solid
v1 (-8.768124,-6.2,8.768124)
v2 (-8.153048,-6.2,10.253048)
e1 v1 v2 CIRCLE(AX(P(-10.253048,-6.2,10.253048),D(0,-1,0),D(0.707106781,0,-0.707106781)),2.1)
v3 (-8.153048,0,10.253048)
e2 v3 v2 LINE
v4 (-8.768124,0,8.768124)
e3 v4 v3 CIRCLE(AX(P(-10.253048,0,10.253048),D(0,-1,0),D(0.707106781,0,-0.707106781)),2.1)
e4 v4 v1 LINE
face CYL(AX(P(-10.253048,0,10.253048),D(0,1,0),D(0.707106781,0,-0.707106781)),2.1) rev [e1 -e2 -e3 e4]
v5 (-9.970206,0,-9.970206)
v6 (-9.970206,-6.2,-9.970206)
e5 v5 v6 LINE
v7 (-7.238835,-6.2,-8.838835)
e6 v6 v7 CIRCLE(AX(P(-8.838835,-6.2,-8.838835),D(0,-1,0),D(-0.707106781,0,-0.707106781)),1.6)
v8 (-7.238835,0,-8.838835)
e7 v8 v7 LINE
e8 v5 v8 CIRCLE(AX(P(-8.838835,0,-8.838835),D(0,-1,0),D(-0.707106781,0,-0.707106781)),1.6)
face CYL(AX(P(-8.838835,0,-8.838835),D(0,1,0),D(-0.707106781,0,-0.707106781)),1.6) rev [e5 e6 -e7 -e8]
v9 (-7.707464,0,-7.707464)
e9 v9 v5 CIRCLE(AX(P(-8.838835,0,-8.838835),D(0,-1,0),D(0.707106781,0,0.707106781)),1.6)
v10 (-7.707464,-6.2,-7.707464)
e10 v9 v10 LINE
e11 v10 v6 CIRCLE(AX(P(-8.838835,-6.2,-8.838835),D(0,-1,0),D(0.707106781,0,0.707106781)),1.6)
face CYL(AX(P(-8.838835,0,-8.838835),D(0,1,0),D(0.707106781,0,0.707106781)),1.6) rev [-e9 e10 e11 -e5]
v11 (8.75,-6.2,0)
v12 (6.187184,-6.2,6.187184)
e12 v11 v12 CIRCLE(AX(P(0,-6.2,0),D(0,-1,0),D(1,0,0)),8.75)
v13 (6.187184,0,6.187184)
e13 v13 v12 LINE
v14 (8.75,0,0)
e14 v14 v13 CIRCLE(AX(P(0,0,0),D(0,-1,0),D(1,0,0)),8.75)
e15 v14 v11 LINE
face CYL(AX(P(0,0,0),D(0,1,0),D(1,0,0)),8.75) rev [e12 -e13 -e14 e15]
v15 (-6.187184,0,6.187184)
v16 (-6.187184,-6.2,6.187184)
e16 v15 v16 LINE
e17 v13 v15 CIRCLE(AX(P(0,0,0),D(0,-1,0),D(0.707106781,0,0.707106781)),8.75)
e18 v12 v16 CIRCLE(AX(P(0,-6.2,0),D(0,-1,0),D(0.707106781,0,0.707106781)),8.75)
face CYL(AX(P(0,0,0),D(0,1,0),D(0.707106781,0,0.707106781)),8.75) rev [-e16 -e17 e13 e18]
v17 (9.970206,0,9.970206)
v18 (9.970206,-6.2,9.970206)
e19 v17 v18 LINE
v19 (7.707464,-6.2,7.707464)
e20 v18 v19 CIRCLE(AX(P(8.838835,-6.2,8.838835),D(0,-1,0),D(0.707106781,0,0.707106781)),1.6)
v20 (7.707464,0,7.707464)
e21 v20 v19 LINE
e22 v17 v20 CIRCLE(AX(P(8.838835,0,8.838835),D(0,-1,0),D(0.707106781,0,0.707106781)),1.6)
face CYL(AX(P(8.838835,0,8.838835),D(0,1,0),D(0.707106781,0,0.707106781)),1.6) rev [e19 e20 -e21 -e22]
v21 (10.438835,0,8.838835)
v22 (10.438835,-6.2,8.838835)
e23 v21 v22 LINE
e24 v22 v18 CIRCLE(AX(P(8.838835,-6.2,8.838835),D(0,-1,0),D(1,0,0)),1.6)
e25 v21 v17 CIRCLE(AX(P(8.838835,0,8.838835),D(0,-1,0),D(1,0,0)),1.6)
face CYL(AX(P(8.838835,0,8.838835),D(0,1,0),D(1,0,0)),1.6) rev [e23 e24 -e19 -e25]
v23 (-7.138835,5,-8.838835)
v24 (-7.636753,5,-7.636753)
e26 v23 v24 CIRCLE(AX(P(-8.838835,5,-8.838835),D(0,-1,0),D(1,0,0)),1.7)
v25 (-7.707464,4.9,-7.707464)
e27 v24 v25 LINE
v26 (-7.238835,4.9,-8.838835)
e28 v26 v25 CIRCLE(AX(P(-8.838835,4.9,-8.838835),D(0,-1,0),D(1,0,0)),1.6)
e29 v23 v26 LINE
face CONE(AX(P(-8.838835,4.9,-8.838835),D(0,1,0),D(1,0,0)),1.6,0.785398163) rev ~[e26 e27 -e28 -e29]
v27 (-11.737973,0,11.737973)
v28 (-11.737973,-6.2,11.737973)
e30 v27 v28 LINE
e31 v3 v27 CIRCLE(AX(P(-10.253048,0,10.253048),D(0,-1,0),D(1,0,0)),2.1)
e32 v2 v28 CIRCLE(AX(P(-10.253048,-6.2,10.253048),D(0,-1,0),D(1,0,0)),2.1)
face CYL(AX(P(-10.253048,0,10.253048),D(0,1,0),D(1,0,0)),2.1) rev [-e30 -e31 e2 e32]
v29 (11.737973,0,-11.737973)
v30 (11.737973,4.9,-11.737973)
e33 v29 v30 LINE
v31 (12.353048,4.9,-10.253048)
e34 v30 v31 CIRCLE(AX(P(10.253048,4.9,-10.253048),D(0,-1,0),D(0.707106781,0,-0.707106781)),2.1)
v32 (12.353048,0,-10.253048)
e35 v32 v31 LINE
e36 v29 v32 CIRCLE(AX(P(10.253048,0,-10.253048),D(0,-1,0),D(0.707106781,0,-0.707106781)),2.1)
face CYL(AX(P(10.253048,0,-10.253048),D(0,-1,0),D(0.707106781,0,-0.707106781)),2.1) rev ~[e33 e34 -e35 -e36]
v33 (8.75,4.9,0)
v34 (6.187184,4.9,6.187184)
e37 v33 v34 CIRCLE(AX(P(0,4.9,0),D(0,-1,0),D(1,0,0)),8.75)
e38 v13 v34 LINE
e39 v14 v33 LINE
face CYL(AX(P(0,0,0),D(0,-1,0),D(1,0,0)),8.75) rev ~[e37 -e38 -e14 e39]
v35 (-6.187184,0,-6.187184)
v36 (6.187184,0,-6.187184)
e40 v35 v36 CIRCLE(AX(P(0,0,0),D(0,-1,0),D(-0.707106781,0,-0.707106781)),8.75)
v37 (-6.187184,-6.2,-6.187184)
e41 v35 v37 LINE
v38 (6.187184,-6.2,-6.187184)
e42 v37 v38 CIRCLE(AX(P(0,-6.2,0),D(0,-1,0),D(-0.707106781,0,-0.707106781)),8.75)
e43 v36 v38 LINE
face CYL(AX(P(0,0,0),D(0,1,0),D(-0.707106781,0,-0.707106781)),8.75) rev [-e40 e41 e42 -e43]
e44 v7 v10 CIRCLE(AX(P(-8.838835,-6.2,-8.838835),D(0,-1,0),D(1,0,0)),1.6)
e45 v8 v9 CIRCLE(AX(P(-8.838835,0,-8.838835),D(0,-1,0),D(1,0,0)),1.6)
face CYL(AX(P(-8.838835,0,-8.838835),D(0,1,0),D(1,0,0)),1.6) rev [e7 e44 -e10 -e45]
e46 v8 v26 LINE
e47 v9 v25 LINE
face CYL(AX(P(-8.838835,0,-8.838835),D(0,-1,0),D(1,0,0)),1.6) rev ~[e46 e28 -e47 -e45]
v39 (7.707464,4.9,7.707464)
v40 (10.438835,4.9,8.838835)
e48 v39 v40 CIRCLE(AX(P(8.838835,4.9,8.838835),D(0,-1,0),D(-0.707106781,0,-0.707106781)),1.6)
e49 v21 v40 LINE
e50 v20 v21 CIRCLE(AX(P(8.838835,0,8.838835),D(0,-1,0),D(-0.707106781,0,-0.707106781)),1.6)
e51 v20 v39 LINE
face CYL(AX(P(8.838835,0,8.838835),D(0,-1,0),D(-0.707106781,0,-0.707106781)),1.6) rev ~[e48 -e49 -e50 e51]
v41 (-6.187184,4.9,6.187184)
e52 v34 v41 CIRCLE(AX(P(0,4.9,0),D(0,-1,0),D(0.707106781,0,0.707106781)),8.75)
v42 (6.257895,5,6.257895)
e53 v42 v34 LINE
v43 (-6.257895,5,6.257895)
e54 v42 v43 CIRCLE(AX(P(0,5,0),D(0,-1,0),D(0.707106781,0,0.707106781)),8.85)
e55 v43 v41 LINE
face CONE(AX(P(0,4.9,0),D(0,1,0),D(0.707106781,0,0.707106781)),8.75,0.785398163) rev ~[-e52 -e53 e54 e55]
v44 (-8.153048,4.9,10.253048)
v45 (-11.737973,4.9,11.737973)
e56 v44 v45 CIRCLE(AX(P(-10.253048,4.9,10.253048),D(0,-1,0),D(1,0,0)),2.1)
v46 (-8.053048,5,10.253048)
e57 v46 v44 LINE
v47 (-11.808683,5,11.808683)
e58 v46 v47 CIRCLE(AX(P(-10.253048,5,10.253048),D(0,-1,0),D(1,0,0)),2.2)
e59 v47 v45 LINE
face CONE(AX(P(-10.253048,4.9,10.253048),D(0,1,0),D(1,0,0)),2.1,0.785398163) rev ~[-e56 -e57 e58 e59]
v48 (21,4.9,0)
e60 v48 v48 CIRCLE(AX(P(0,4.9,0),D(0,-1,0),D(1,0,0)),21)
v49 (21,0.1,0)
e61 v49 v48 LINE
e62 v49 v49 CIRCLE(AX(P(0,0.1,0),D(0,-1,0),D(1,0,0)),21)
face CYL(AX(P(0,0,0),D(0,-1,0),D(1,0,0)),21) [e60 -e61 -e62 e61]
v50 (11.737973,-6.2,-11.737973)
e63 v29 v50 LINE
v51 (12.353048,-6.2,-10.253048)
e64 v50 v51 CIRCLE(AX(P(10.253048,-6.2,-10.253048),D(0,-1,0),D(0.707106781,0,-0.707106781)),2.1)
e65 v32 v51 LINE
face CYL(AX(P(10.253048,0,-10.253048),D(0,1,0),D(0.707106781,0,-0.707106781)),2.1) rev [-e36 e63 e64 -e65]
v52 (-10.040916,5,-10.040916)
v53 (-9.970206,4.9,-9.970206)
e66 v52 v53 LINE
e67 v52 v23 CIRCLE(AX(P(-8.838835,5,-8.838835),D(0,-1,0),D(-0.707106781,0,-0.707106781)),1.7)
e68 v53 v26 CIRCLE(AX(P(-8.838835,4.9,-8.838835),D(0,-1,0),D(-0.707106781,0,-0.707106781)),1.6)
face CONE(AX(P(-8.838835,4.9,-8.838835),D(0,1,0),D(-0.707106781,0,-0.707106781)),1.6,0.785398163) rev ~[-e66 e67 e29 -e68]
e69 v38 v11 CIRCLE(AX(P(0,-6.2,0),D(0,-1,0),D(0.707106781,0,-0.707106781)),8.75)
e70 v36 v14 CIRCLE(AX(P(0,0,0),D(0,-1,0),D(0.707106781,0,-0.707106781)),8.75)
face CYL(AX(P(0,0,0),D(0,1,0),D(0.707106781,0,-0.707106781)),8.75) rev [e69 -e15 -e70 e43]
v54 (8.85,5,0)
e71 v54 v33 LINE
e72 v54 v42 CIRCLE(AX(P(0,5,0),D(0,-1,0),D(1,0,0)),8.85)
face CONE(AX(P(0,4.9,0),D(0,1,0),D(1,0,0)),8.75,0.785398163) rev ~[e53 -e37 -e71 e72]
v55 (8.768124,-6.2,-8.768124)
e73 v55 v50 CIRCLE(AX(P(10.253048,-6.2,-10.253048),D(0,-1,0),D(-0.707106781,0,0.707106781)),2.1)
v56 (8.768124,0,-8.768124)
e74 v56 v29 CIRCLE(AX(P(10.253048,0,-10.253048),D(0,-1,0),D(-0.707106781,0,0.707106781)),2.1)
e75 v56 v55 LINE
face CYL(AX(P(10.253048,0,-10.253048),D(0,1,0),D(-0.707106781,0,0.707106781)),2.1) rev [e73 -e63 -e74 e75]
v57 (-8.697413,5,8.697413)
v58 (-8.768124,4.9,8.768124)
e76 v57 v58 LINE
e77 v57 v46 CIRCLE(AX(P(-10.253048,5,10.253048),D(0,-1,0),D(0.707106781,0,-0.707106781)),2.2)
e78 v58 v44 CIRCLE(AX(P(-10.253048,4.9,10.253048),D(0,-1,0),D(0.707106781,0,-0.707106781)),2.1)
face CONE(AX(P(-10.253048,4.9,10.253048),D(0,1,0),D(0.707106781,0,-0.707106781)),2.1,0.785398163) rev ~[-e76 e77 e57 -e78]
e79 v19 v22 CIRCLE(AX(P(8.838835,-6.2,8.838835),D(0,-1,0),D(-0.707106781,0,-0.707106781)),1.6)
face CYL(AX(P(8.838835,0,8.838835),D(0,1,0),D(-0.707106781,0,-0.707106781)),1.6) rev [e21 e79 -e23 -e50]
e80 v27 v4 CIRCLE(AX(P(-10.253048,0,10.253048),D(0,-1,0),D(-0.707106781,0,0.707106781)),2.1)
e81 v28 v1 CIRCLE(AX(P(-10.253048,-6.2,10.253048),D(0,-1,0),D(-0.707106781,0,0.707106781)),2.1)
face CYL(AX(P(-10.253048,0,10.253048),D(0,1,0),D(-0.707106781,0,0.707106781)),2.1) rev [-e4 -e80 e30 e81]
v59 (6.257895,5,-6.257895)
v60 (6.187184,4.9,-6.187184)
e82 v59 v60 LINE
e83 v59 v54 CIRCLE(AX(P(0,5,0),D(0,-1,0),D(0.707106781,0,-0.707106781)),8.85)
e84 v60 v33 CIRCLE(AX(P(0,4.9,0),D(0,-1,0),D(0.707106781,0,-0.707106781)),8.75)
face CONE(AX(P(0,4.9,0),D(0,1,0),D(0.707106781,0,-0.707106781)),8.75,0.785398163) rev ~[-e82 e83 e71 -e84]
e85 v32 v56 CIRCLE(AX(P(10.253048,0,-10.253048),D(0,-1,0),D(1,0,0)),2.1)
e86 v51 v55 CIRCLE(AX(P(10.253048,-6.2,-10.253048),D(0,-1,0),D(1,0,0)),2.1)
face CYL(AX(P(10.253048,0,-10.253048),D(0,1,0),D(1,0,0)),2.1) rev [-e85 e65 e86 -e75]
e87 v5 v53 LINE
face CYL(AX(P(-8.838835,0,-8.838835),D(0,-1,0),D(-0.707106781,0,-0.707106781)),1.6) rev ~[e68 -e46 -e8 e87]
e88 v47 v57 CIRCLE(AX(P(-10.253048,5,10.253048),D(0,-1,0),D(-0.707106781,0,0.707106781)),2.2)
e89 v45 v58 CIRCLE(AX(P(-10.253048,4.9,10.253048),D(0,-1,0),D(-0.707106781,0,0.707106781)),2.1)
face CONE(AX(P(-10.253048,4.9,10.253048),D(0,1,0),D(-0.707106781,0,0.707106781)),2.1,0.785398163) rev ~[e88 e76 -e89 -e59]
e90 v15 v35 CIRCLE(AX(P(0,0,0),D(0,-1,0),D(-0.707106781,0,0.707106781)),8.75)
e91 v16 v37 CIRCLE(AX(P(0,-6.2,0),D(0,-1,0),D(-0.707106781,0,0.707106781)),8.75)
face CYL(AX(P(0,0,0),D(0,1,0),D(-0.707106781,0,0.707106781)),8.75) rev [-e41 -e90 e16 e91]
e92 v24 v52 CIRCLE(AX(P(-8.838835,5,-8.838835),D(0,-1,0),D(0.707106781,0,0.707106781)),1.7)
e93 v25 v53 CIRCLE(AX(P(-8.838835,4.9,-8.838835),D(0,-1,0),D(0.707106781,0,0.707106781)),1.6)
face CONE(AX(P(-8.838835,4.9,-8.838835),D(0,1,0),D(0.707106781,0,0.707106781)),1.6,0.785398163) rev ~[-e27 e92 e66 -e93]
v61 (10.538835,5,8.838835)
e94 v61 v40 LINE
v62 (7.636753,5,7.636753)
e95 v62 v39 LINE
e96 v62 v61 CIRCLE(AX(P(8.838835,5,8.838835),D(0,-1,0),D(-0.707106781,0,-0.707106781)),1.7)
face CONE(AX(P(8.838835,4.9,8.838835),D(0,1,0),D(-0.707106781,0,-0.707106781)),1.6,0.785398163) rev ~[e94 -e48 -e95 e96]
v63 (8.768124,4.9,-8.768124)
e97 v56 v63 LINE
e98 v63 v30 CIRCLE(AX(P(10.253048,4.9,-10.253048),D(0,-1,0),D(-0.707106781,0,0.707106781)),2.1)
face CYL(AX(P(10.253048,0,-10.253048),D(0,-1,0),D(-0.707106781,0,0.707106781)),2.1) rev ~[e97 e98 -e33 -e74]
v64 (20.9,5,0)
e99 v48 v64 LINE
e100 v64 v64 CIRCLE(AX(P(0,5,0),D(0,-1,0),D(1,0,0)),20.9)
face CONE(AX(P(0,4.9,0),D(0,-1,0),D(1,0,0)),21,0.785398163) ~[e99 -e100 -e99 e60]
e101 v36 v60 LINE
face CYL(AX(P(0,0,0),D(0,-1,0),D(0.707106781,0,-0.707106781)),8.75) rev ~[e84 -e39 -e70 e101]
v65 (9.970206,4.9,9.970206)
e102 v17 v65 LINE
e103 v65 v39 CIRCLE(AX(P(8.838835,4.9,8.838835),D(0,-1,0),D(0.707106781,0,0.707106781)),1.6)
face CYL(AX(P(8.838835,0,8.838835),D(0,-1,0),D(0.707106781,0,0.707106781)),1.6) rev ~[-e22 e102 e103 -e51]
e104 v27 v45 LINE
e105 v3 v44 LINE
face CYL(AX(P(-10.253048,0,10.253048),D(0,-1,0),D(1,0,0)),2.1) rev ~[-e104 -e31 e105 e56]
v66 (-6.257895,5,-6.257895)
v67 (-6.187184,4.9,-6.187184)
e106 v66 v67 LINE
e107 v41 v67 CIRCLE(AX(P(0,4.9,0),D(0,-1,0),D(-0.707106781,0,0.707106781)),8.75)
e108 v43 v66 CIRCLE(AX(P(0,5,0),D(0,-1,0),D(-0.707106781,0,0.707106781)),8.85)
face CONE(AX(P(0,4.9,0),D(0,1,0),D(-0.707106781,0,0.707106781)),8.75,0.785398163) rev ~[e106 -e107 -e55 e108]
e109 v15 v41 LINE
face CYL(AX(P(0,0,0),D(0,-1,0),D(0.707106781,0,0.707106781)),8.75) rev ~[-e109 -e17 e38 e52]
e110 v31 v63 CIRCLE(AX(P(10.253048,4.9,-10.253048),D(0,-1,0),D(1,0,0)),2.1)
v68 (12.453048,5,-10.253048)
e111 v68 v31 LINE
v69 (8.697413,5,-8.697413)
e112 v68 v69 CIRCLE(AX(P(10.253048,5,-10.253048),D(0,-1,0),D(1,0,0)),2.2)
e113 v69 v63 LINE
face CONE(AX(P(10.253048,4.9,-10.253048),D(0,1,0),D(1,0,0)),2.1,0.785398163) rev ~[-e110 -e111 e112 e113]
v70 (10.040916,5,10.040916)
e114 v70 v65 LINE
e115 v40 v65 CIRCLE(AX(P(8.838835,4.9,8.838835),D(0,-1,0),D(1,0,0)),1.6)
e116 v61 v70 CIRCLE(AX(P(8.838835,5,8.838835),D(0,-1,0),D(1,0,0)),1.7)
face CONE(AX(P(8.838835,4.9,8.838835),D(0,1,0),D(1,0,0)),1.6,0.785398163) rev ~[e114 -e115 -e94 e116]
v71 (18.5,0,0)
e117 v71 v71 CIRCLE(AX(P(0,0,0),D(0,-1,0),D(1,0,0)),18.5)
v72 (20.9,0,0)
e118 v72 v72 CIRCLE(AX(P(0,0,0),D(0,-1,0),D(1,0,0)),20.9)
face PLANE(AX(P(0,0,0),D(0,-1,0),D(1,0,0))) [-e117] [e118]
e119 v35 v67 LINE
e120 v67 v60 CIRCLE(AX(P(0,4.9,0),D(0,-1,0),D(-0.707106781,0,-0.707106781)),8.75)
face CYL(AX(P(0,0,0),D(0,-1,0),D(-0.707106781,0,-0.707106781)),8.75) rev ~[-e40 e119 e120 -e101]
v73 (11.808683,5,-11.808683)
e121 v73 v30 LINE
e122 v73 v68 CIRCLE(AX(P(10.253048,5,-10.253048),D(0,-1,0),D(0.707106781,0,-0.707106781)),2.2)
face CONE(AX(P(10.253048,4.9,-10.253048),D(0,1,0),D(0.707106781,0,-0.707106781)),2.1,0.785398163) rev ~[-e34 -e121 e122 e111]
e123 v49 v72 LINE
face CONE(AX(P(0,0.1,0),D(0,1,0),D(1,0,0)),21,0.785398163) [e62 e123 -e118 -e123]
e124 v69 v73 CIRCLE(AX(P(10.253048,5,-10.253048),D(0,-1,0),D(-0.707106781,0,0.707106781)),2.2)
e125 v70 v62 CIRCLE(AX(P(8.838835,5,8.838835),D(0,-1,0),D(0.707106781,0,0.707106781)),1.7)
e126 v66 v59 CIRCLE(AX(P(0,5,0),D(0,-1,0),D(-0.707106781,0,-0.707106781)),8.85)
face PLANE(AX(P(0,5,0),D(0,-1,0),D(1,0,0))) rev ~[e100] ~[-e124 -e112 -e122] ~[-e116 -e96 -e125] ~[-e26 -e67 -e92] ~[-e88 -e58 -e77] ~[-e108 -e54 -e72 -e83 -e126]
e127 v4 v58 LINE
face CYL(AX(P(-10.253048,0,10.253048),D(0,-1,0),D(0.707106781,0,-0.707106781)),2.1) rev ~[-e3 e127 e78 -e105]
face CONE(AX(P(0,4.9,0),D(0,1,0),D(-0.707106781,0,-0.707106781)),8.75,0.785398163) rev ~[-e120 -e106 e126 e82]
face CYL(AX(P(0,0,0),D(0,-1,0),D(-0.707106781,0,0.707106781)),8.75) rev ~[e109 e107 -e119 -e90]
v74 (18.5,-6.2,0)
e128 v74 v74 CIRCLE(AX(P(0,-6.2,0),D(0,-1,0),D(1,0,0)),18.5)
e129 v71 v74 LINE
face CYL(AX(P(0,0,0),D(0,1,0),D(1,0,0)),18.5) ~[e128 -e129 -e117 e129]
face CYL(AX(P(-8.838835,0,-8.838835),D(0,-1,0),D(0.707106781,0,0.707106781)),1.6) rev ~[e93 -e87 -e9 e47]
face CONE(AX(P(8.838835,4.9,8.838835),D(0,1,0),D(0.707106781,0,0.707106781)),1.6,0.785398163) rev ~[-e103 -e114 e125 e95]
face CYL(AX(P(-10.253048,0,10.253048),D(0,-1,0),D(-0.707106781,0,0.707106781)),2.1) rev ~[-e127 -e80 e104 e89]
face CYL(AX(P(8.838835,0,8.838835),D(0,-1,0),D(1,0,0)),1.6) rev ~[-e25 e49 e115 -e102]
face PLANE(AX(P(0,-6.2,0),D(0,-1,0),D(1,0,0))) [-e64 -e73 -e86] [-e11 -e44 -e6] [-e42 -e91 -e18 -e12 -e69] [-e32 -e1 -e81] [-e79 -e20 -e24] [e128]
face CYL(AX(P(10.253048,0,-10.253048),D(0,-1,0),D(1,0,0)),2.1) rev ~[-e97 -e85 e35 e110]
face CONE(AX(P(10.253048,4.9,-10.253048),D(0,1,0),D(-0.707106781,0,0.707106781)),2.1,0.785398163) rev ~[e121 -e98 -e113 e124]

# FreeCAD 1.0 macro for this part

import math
import FreeCAD as App
import Part
import Sketcher


def edges_at(feature, points):
    """Names of the edges that pass closest to the given points."""
    edges = feature.Shape.Edges
    near = lambda p: min(range(len(edges)), key=lambda i: edges[i].distToShape(Part.Vertex(*p))[0])
    return sorted({f"Edge{near(p) + 1}" for p in points})

doc = App.newDocument("Part")
body = doc.addObject("PartDesign::Body", "Body")

# Sketch on XZ plane
sketch1 = body.newObject("Sketcher::SketchObject", "Sketch")
sketch1.AttachmentSupport = (doc.getObject("XZ_Plane"), [""])
sketch1.MapMode = "FlatFace"
sketch1.addGeometry(Part.Circle(App.Vector(0, 0, 0), App.Vector(0, 0, 1), 21), False)
sketch1.addConstraint([
    Sketcher.Constraint("Coincident", 0, 3, -1, 1),
    Sketcher.Constraint("Diameter", 0, 42.0),
])
pad1 = body.newObject("PartDesign::Pad", "Pad")
pad1.Profile = sketch1
pad1.Length = 5
pad1.Reversed = True

# Sketch on XZ plane
sketch2 = body.newObject("Sketcher::SketchObject", "Sketch001")
sketch2.AttachmentSupport = (doc.getObject("XZ_Plane"), [""])
sketch2.MapMode = "FlatFace"
sketch2.addGeometry(Part.Circle(App.Vector(0, 0, 0), App.Vector(0, 0, 1), 18.5), False)
sketch2.addConstraint([
    Sketcher.Constraint("Coincident", 0, 3, -1, 1),
    Sketcher.Constraint("Diameter", 0, 37.0),
])
pad2 = body.newObject("PartDesign::Pad", "Pad001")
pad2.Profile = sketch2
pad2.Length = 6.2

# Sketch on XZ plane
sketch3 = body.newObject("Sketcher::SketchObject", "Sketch002")
sketch3.AttachmentSupport = (doc.getObject("XZ_Plane"), [""])
sketch3.MapMode = "FlatFace"
sketch3.addGeometry([
    Part.ArcOfCircle(Part.Circle(App.Vector(8.838835, 8.838835, 0), App.Vector(0, 0, 1), 1.6), math.radians(-135), math.radians(0)),  # 0
    Part.ArcOfCircle(Part.Circle(App.Vector(8.838835, 8.838835, 0), App.Vector(0, 0, 1), 1.6), math.radians(0), math.radians(45)),  # 1
    Part.ArcOfCircle(Part.Circle(App.Vector(8.838835, 8.838835, 0), App.Vector(0, 0, 1), 1.6), math.radians(45), math.radians(225)),  # 2
    Part.ArcOfCircle(Part.Circle(App.Vector(10.253048, -10.253048, 0), App.Vector(0, 0, 1), 2.1), math.radians(0), math.radians(135)),  # 3
    Part.ArcOfCircle(Part.Circle(App.Vector(10.253048, -10.253048, 0), App.Vector(0, 0, 1), 2.1), math.radians(135), math.radians(315)),  # 4
    Part.ArcOfCircle(Part.Circle(App.Vector(10.253048, -10.253048, 0), App.Vector(0, 0, 1), 2.1), math.radians(-45), math.radians(0)),  # 5
    Part.ArcOfCircle(Part.Circle(App.Vector(-8.838835, -8.838835, 0), App.Vector(0, 0, 1), 1.6), math.radians(0), math.radians(45)),  # 6
    Part.ArcOfCircle(Part.Circle(App.Vector(-8.838835, -8.838835, 0), App.Vector(0, 0, 1), 1.6), math.radians(45), math.radians(225)),  # 7
    Part.ArcOfCircle(Part.Circle(App.Vector(-8.838835, -8.838835, 0), App.Vector(0, 0, 1), 1.6), math.radians(-135), math.radians(0)),  # 8
    Part.ArcOfCircle(Part.Circle(App.Vector(-10.253048, 10.253048, 0), App.Vector(0, 0, 1), 2.1), math.radians(135), math.radians(315)),  # 9
    Part.ArcOfCircle(Part.Circle(App.Vector(-10.253048, 10.253048, 0), App.Vector(0, 0, 1), 2.1), math.radians(-45), math.radians(0)),  # 10
    Part.ArcOfCircle(Part.Circle(App.Vector(-10.253048, 10.253048, 0), App.Vector(0, 0, 1), 2.1), math.radians(0), math.radians(135)),  # 11
    Part.ArcOfCircle(Part.Circle(App.Vector(0, 0, 0), App.Vector(0, 0, 1), 8.75), math.radians(0), math.radians(45)),  # 12
    Part.ArcOfCircle(Part.Circle(App.Vector(0, 0, 0), App.Vector(0, 0, 1), 8.75), math.radians(45), math.radians(135)),  # 13
    Part.ArcOfCircle(Part.Circle(App.Vector(0, 0, 0), App.Vector(0, 0, 1), 8.75), math.radians(135), math.radians(225)),  # 14
    Part.ArcOfCircle(Part.Circle(App.Vector(0, 0, 0), App.Vector(0, 0, 1), 8.75), math.radians(-135), math.radians(-45)),  # 15
    Part.ArcOfCircle(Part.Circle(App.Vector(0, 0, 0), App.Vector(0, 0, 1), 8.75), math.radians(-45), math.radians(0)),  # 16
], False)
sketch3.addConstraint([
    Sketcher.Constraint("Tangent", 0, 2, 1, 1),
    Sketcher.Constraint("Tangent", 1, 2, 2, 1),
    Sketcher.Constraint("Tangent", 2, 2, 0, 1),
    Sketcher.Constraint("Tangent", 3, 2, 4, 1),
    Sketcher.Constraint("Tangent", 4, 2, 5, 1),
    Sketcher.Constraint("Tangent", 5, 2, 3, 1),
    Sketcher.Constraint("Tangent", 6, 2, 7, 1),
    Sketcher.Constraint("Tangent", 7, 2, 8, 1),
    Sketcher.Constraint("Tangent", 8, 2, 6, 1),
    Sketcher.Constraint("Tangent", 9, 2, 10, 1),
    Sketcher.Constraint("Tangent", 10, 2, 11, 1),
    Sketcher.Constraint("Tangent", 11, 2, 9, 1),
    Sketcher.Constraint("Tangent", 12, 2, 13, 1),
    Sketcher.Constraint("Tangent", 13, 2, 14, 1),
    Sketcher.Constraint("Tangent", 14, 2, 15, 1),
    Sketcher.Constraint("Tangent", 15, 2, 16, 1),
    Sketcher.Constraint("Tangent", 16, 2, 12, 1),
    Sketcher.Constraint("Coincident", 12, 3, -1, 1),
    Sketcher.Constraint("Coincident", 14, 3, -1, 1),
    Sketcher.Constraint("Equal", 2, 6),
    Sketcher.Constraint("Equal", 5, 9),
    Sketcher.Constraint("Symmetric", 0, 3, 6, 3, -1, 1),
    Sketcher.Constraint("Symmetric", 3, 3, 9, 3, -1, 1),
    Sketcher.Constraint("PointOnObject", 16, 2, -1),
    Sketcher.Constraint("Horizontal", 2, 3, 0, 2),
    Sketcher.Constraint("Horizontal", 4, 3, 5, 2),
    Sketcher.Constraint("Horizontal", 7, 3, 8, 2),
    Sketcher.Constraint("Horizontal", 11, 3, 10, 2),
    Sketcher.Constraint("Horizontal", 12, 2, 13, 2),
    Sketcher.Constraint("Horizontal", 14, 2, 15, 2),
    Sketcher.Constraint("Vertical", 13, 2, 14, 2),
    Sketcher.Constraint("Radius", 0, 1.6),
    Sketcher.Constraint("Radius", 3, 2.1),
    Sketcher.Constraint("Radius", 12, 8.75),
    Sketcher.Constraint("DistanceX", -1, 1, 3, 3, 10.253048),
    Sketcher.Constraint("DistanceY", 3, 3, -1, 1, 10.253048),
    Sketcher.Constraint("DistanceX", 6, 3, 0, 3, 17.67767),
    Sketcher.Constraint("DistanceY", 6, 3, 0, 3, 17.67767),
    Sketcher.Constraint("DistanceX", 1, 2, 0, 2, 0.468629),
    Sketcher.Constraint("DistanceX", 2, 2, 0, 3, 1.131371),
    Sketcher.Constraint("DistanceX", 3, 2, 4, 2, 2.969848),
    Sketcher.Constraint("DistanceX", 6, 3, 6, 2, 1.131371),
    Sketcher.Constraint("DistanceX", 7, 2, 6, 3, 1.131371),
    Sketcher.Constraint("DistanceX", 11, 2, 9, 2, 2.969848),
    Sketcher.Constraint("DistanceX", 12, 2, 2, 2, 1.52028),
    Sketcher.Constraint("DistanceX", 9, 2, 13, 2, 2.58094),
    Sketcher.Constraint("DistanceX", 15, 2, 3, 2, 2.58094),
])
pocket1 = body.newObject("PartDesign::Pocket", "Pocket")
pocket1.Profile = sketch3
pocket1.Type = "ThroughAll"
pocket1.Midplane = True
doc.recompute()

chamfer = body.newObject("PartDesign::Chamfer", "Chamfer")
chamfer.Base = (pocket1, edges_at(pocket1, [
    (-21, 5, 0),
    (-9.97, 5, -7.707),
    (8.768, 5, -11.738),
    (8.084, 5, 3.348),
    (-11.738, 5, 8.768),
    (9.451, 5, 7.361),
    (-21, 0, 0),
]))
chamfer.Size = 0.1

doc.recompute()
